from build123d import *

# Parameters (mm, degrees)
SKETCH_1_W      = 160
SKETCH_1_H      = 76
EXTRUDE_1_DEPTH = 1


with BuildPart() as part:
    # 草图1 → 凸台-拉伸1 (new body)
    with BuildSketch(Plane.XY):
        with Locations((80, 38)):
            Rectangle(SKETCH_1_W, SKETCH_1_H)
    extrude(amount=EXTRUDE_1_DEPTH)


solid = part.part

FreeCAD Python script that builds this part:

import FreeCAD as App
import Part
import Sketcher


def add_polygon(sketch, points):
    """Adds a closed chain of lines whose ends are joined by coincident constraints."""
    first, n = sketch.GeometryCount, len(points)
    for a, b in zip(points, points[1:] + points[:1]):
        sketch.addGeometry(Part.LineSegment(App.Vector(*a, 0), App.Vector(*b, 0)), False)
    for i in range(n):
        sketch.addConstraint(Sketcher.Constraint("Coincident", first + i, 2, first + (i + 1) % n, 1))

doc = App.newDocument("Part")
body = doc.addObject("PartDesign::Body", "Body")

sketch1 = body.newObject("Sketcher::SketchObject", "Sketch")
sketch1.AttachmentSupport = (doc.getObject("XY_Plane"), [""])
sketch1.MapMode = "FlatFace"
add_polygon(sketch1, [(0, 76), (0, 0), (160, 0), (160, 76)])
sketch1.addConstraint([
    Sketcher.Constraint("Vertical", 0),
    Sketcher.Constraint("Horizontal", 1),
    Sketcher.Constraint("Vertical", 2),
    Sketcher.Constraint("Horizontal", 3),
    Sketcher.Constraint("Coincident", 0, 2, -1, 1),
    Sketcher.Constraint("DistanceX", 1, 1, 1, 2, 160.0),
    Sketcher.Constraint("DistanceY", 0, 2, 0, 1, 76.0),
])
pad1 = body.newObject("PartDesign::Pad", "Pad")
pad1.Profile = sketch1
pad1.Length = 1

doc.recompute()
